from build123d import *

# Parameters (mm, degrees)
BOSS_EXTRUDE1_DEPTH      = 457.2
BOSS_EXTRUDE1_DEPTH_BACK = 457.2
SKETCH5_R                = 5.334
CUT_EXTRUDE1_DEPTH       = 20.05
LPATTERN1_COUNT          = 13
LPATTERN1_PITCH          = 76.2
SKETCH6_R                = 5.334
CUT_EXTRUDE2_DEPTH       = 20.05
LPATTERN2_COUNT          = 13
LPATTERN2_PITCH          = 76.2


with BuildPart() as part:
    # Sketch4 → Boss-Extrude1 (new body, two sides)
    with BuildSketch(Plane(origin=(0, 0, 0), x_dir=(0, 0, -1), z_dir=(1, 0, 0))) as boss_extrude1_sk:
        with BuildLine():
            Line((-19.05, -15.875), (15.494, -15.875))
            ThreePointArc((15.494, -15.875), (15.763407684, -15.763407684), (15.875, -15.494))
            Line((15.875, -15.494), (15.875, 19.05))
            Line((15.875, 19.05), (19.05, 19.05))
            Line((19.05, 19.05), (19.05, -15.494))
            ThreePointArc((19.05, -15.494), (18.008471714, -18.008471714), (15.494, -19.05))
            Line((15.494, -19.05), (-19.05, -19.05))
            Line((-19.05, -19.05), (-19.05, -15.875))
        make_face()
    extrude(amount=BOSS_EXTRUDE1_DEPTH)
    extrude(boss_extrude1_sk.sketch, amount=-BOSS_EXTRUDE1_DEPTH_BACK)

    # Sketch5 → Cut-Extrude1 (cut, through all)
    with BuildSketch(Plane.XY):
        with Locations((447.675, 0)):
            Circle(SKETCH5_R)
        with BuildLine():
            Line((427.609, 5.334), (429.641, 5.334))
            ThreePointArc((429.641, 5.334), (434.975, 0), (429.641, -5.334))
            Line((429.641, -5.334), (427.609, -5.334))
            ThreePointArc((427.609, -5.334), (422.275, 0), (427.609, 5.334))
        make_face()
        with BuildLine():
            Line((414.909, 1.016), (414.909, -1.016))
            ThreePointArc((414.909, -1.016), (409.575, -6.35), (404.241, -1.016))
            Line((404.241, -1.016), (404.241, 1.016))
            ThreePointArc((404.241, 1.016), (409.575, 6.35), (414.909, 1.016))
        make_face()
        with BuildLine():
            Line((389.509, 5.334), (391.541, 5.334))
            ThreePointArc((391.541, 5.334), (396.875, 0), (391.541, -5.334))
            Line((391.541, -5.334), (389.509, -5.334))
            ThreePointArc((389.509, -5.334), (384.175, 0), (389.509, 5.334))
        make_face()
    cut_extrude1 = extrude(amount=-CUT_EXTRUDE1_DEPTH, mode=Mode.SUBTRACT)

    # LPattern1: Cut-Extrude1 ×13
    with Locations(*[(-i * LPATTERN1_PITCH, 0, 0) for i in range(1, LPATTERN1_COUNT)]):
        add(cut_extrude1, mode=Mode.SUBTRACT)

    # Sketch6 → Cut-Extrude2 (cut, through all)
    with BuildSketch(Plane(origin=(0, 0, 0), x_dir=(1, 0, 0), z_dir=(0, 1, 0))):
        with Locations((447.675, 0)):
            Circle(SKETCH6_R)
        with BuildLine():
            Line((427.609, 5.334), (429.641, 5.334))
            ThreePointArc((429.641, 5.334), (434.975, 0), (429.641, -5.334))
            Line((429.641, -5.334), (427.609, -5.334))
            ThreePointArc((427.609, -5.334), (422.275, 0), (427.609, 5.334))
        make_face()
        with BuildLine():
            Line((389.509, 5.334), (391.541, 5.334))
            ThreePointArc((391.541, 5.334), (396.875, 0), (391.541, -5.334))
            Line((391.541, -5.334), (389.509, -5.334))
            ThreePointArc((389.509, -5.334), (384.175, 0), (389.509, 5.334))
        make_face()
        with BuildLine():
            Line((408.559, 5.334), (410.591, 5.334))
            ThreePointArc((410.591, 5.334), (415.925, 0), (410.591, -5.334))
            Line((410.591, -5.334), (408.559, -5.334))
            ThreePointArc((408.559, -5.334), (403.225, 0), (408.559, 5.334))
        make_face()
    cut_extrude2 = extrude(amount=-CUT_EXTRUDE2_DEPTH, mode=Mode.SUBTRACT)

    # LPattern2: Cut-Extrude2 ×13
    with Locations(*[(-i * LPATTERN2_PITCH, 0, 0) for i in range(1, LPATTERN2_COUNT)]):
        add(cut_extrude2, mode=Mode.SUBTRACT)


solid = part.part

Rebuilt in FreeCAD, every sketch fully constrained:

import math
import FreeCAD as App
import Part
import Sketcher
Q = App.Units.Quantity

doc = App.newDocument("Part")
params = doc.addObject("Spreadsheet::Sheet", "Params")
for row, (alias, value) in enumerate([
    ("sketch1_radius", "0.14 in"),
    ("sketch1_radius2", "0.015 in"),
    ("sketch1_width", "1.36 in"),
    ("pad1_length", "18 in"),
    ("pad1_length2", "18 in"),
    ("sketch2_diameter", "0.42 in"),
    ("sketch2_width", "0.08 in"),
    ("linearpattern_pitch", "3 in"),
    ("sketch3_diameter", "0.42 in"),
    ("sketch3_width", "0.08 in"),
    ("linearpattern2_pitch", "3 in"),
], start=1):
    params.set(f"A{row}", alias)
    params.set(f"B{row}", "=" + value)
    params.setAlias(f"B{row}", alias)

body = doc.addObject("PartDesign::Body", "Body")

# Sketch on YZ plane
sketch1 = doc.addObject("Sketcher::SketchObject", "Sketch")
body.addObject(sketch1)
sketch1.AttachmentSupport = (doc.YZ_Plane, [""])
sketch1.MapMode = "FlatFace"
sketch1.addGeometry(Part.LineSegment(App.Vector(-15.88, -15.49, 0), App.Vector(-15.88, 19.05, 0)), False)
sketch1.addGeometry(Part.LineSegment(App.Vector(-15.88, 19.05, 0), App.Vector(-19.05, 19.05, 0)), False)
sketch1.addGeometry(Part.LineSegment(App.Vector(-19.05, 19.05, 0), App.Vector(-19.05, -15.49, 0)), False)
sketch1.addGeometry(Part.ArcOfCircle(Part.Circle(App.Vector(-15.49, -15.49, 0), App.Vector(0, 0, 1), 3.56), math.radians(180), math.radians(270)), False)
sketch1.addGeometry(Part.LineSegment(App.Vector(-15.49, -19.05, 0), App.Vector(19.05, -19.05, 0)), False)
sketch1.addGeometry(Part.LineSegment(App.Vector(19.05, -19.05, 0), App.Vector(19.05, -15.88, 0)), False)
sketch1.addGeometry(Part.LineSegment(App.Vector(19.05, -15.88, 0), App.Vector(-15.49, -15.88, 0)), False)
sketch1.addGeometry(Part.ArcOfCircle(Part.Circle(App.Vector(-15.49, -15.49, 0), App.Vector(0, 0, 1), 0.38), math.radians(180), math.radians(270)), False)
sketch1.addConstraint(Sketcher.Constraint("Coincident", 0, 2, 1, 1))
sketch1.addConstraint(Sketcher.Constraint("Coincident", 1, 2, 2, 1))
sketch1.addConstraint(Sketcher.Constraint("Tangent", 2, 2, 3, 1))
sketch1.addConstraint(Sketcher.Constraint("Tangent", 3, 2, 4, 1))
sketch1.addConstraint(Sketcher.Constraint("Coincident", 4, 2, 5, 1))
sketch1.addConstraint(Sketcher.Constraint("Coincident", 5, 2, 6, 1))
sketch1.addConstraint(Sketcher.Constraint("Tangent", 6, 2, 7, 2))
sketch1.addConstraint(Sketcher.Constraint("Tangent", 7, 1, 0, 1))
sketch1.addConstraint(Sketcher.Constraint("Vertical", 0))
sketch1.addConstraint(Sketcher.Constraint("Horizontal", 1))
sketch1.addConstraint(Sketcher.Constraint("Vertical", 2))
sketch1.addConstraint(Sketcher.Constraint("Horizontal", 4))
sketch1.addConstraint(Sketcher.Constraint("Vertical", 5))
sketch1.addConstraint(Sketcher.Constraint("Horizontal", 6))
sketch1.addConstraint(Sketcher.Constraint("Coincident", 7, 3, 3, 3))
sketch1.addConstraint(Sketcher.Constraint("Symmetric", 1, 2, 4, 2, -1, 1))
sketch1.addConstraint(Sketcher.Constraint("Equal", 6, 0))
sketch1.addConstraint(Sketcher.Constraint("Radius", 3, Q("0.14 in")))
sketch1.addConstraint(Sketcher.Constraint("Radius", 7, Q("0.015 in")))
sketch1.addConstraint(Sketcher.Constraint("DistanceX", 4, 1, 4, 2, Q("1.36 in")))
sketch1.setExpression("Constraints[17]", "Params.sketch1_radius")
sketch1.setExpression("Constraints[18]", "Params.sketch1_radius2")
sketch1.setExpression("Constraints[19]", "Params.sketch1_width")
pad1 = doc.addObject("PartDesign::Pad", "Pad")
body.addObject(pad1)
pad1.Profile = sketch1
pad1.Type = "TwoLengths"
pad1.setExpression("Length", "Params.pad1_length")
pad1.setExpression("Length2", "Params.pad1_length2")

# Sketch on XY plane
sketch2 = doc.addObject("Sketcher::SketchObject", "Sketch001")
body.addObject(sketch2)
sketch2.AttachmentSupport = (doc.XY_Plane, [""])
sketch2.MapMode = "FlatFace"
sketch2.addGeometry(Part.Circle(App.Vector(447.7, 0, 0), App.Vector(0, 0, 1), 5.3), False)
sketch2.addGeometry(Part.LineSegment(App.Vector(429.6, 5.3, 0), App.Vector(427.6, 5.3, 0)), False)
sketch2.addGeometry(Part.ArcOfCircle(Part.Circle(App.Vector(427.6, 0, 0), App.Vector(0, 0, 1), 5.3), math.radians(90), math.radians(270)), False)
sketch2.addGeometry(Part.LineSegment(App.Vector(427.6, -5.3, 0), App.Vector(429.6, -5.3, 0)), False)
sketch2.addGeometry(Part.ArcOfCircle(Part.Circle(App.Vector(429.6, 0, 0), App.Vector(0, 0, 1), 5.3), math.radians(-90), math.radians(90)), False)
sketch2.addGeometry(Part.LineSegment(App.Vector(414.9, -1, 0), App.Vector(414.9, 1, 0)), False)
sketch2.addGeometry(Part.ArcOfCircle(Part.Circle(App.Vector(409.6, 1, 0), App.Vector(0, 0, 1), 5.3), math.radians(0), math.radians(180)), False)
sketch2.addGeometry(Part.LineSegment(App.Vector(404.2, 1, 0), App.Vector(404.2, -1, 0)), False)
sketch2.addGeometry(Part.ArcOfCircle(Part.Circle(App.Vector(409.6, -1, 0), App.Vector(0, 0, 1), 5.3), math.radians(180), math.radians(360)), False)
sketch2.addGeometry(Part.LineSegment(App.Vector(391.5, 5.3, 0), App.Vector(389.5, 5.3, 0)), False)
sketch2.addGeometry(Part.ArcOfCircle(Part.Circle(App.Vector(389.5, 0, 0), App.Vector(0, 0, 1), 5.3), math.radians(90), math.radians(270)), False)
sketch2.addGeometry(Part.LineSegment(App.Vector(389.5, -5.3, 0), App.Vector(391.5, -5.3, 0)), False)
sketch2.addGeometry(Part.ArcOfCircle(Part.Circle(App.Vector(391.5, 0, 0), App.Vector(0, 0, 1), 5.3), math.radians(-90), math.radians(90)), False)
sketch2.addConstraint(Sketcher.Constraint("Tangent", 1, 2, 2, 1))
sketch2.addConstraint(Sketcher.Constraint("Tangent", 2, 2, 3, 1))
sketch2.addConstraint(Sketcher.Constraint("Tangent", 3, 2, 4, 1))
sketch2.addConstraint(Sketcher.Constraint("Tangent", 4, 2, 1, 1))
sketch2.addConstraint(Sketcher.Constraint("Tangent", 5, 2, 6, 1))
sketch2.addConstraint(Sketcher.Constraint("Tangent", 6, 2, 7, 1))
sketch2.addConstraint(Sketcher.Constraint("Tangent", 7, 2, 8, 1))
sketch2.addConstraint(Sketcher.Constraint("Tangent", 8, 2, 5, 1))
sketch2.addConstraint(Sketcher.Constraint("Tangent", 9, 2, 10, 1))
sketch2.addConstraint(Sketcher.Constraint("Tangent", 10, 2, 11, 1))
sketch2.addConstraint(Sketcher.Constraint("Tangent", 11, 2, 12, 1))
sketch2.addConstraint(Sketcher.Constraint("Tangent", 12, 2, 9, 1))
sketch2.addConstraint(Sketcher.Constraint("Horizontal", 1))
sketch2.addConstraint(Sketcher.Constraint("Horizontal", 3))
sketch2.addConstraint(Sketcher.Constraint("Vertical", 5))
sketch2.addConstraint(Sketcher.Constraint("Vertical", 7))
sketch2.addConstraint(Sketcher.Constraint("Horizontal", 9))
sketch2.addConstraint(Sketcher.Constraint("Horizontal", 11))
sketch2.addConstraint(Sketcher.Constraint("Equal", 0, 2))
sketch2.addConstraint(Sketcher.Constraint("Equal", 4, 6))
sketch2.addConstraint(Sketcher.Constraint("Equal", 8, 10))
sketch2.addConstraint(Sketcher.Constraint("PointOnObject", 0, 3, -1))
sketch2.addConstraint(Sketcher.Constraint("PointOnObject", 2, 3, -1))
sketch2.addConstraint(Sketcher.Constraint("PointOnObject", 10, 3, -1))
sketch2.addConstraint(Sketcher.Constraint("Equal", 3, 9))
sketch2.addConstraint(Sketcher.Constraint("Equal", 11, 5))
sketch2.addConstraint(Sketcher.Constraint("Diameter", 0, Q("0.42 in")))
sketch2.addConstraint(Sketcher.Constraint("DistanceX", 1, 2, 1, 1, Q("0.08 in")))
sketch2.addConstraint(Sketcher.Constraint("DistanceX", 6, 3, 0, 3, Q("1.5 in")))
sketch2.addConstraint(Sketcher.Constraint("DistanceX", 10, 3, 2, 3, Q("1.5 in")))
sketch2.addConstraint(Sketcher.Constraint("DistanceX", 5, 2, 2, 3, Q("0.5 in")))
sketch2.addConstraint(Sketcher.Constraint("DistanceY", -1, 1, 6, 3, Q("0.04 in")))
sketch2.addConstraint(Sketcher.Constraint("DistanceX", -1, 1, 0, 3, Q("17.625 in")))
sketch2.setExpression("Constraints[26]", "Params.sketch2_diameter")
sketch2.setExpression("Constraints[27]", "Params.sketch2_width")
pocket1 = doc.addObject("PartDesign::Pocket", "Pocket")
body.addObject(pocket1)
pocket1.Profile = sketch2
pocket1.Type = "ThroughAll"
doc.recompute()

linearpattern = doc.addObject("PartDesign::LinearPattern", "LinearPattern")
body.addObject(linearpattern)
linearpattern.Originals = [pocket1]
linearpattern.Direction = (doc.X_Axis, [""])
linearpattern.Mode = "offset"
linearpattern.setExpression("Offset", "Params.linearpattern_pitch")
linearpattern.Occurrences = 13
linearpattern.Reversed = True
body.Tip = linearpattern

# Sketch on XZ plane
sketch3 = doc.addObject("Sketcher::SketchObject", "Sketch002")
body.addObject(sketch3)
sketch3.AttachmentSupport = (doc.XZ_Plane, [""])
sketch3.MapMode = "FlatFace"
sketch3.addGeometry(Part.Circle(App.Vector(447.7, 0, 0), App.Vector(0, 0, 1), 5.3), False)
sketch3.addGeometry(Part.LineSegment(App.Vector(429.6, -5.3, 0), App.Vector(427.6, -5.3, 0)), False)
sketch3.addGeometry(Part.ArcOfCircle(Part.Circle(App.Vector(427.6, 0, 0), App.Vector(0, 0, 1), 5.3), math.radians(90), math.radians(270)), False)
sketch3.addGeometry(Part.LineSegment(App.Vector(427.6, 5.3, 0), App.Vector(429.6, 5.3, 0)), False)
sketch3.addGeometry(Part.ArcOfCircle(Part.Circle(App.Vector(429.6, 0, 0), App.Vector(0, 0, 1), 5.3), math.radians(-90), math.radians(90)), False)
sketch3.addGeometry(Part.LineSegment(App.Vector(391.5, -5.3, 0), App.Vector(389.5, -5.3, 0)), False)
sketch3.addGeometry(Part.ArcOfCircle(Part.Circle(App.Vector(389.5, 0, 0), App.Vector(0, 0, 1), 5.3), math.radians(90), math.radians(270)), False)
sketch3.addGeometry(Part.LineSegment(App.Vector(389.5, 5.3, 0), App.Vector(391.5, 5.3, 0)), False)
sketch3.addGeometry(Part.ArcOfCircle(Part.Circle(App.Vector(391.5, 0, 0), App.Vector(0, 0, 1), 5.3), math.radians(-90), math.radians(90)), False)
sketch3.addGeometry(Part.LineSegment(App.Vector(410.6, -5.3, 0), App.Vector(408.6, -5.3, 0)), False)
sketch3.addGeometry(Part.ArcOfCircle(Part.Circle(App.Vector(408.6, 0, 0), App.Vector(0, 0, 1), 5.3), math.radians(90), math.radians(270)), False)
sketch3.addGeometry(Part.LineSegment(App.Vector(408.6, 5.3, 0), App.Vector(410.6, 5.3, 0)), False)
sketch3.addGeometry(Part.ArcOfCircle(Part.Circle(App.Vector(410.6, 0, 0), App.Vector(0, 0, 1), 5.3), math.radians(-90), math.radians(90)), False)
sketch3.addConstraint(Sketcher.Constraint("Tangent", 1, 2, 2, 2))
sketch3.addConstraint(Sketcher.Constraint("Tangent", 2, 1, 3, 1))
sketch3.addConstraint(Sketcher.Constraint("Tangent", 3, 2, 4, 2))
sketch3.addConstraint(Sketcher.Constraint("Tangent", 4, 1, 1, 1))
sketch3.addConstraint(Sketcher.Constraint("Tangent", 5, 2, 6, 2))
sketch3.addConstraint(Sketcher.Constraint("Tangent", 6, 1, 7, 1))
sketch3.addConstraint(Sketcher.Constraint("Tangent", 7, 2, 8, 2))
sketch3.addConstraint(Sketcher.Constraint("Tangent", 8, 1, 5, 1))
sketch3.addConstraint(Sketcher.Constraint("Tangent", 9, 2, 10, 2))
sketch3.addConstraint(Sketcher.Constraint("Tangent", 10, 1, 11, 1))
sketch3.addConstraint(Sketcher.Constraint("Tangent", 11, 2, 12, 2))
sketch3.addConstraint(Sketcher.Constraint("Tangent", 12, 1, 9, 1))
sketch3.addConstraint(Sketcher.Constraint("Horizontal", 1))
sketch3.addConstraint(Sketcher.Constraint("Horizontal", 3))
sketch3.addConstraint(Sketcher.Constraint("Horizontal", 5))
sketch3.addConstraint(Sketcher.Constraint("Horizontal", 7))
sketch3.addConstraint(Sketcher.Constraint("Horizontal", 9))
sketch3.addConstraint(Sketcher.Constraint("Horizontal", 11))
sketch3.addConstraint(Sketcher.Constraint("Equal", 0, 2))
sketch3.addConstraint(Sketcher.Constraint("Equal", 4, 6))
sketch3.addConstraint(Sketcher.Constraint("Equal", 8, 10))
sketch3.addConstraint(Sketcher.Constraint("PointOnObject", 0, 3, -1))
sketch3.addConstraint(Sketcher.Constraint("PointOnObject", 2, 3, -1))
sketch3.addConstraint(Sketcher.Constraint("PointOnObject", 6, 3, -1))
sketch3.addConstraint(Sketcher.Constraint("PointOnObject", 10, 3, -1))
sketch3.addConstraint(Sketcher.Constraint("Equal", 3, 5))
sketch3.addConstraint(Sketcher.Constraint("Equal", 7, 9))
sketch3.addConstraint(Sketcher.Constraint("Diameter", 0, Q("0.42 in")))
sketch3.addConstraint(Sketcher.Constraint("DistanceX", 1, 2, 1, 1, Q("0.08 in")))
sketch3.addConstraint(Sketcher.Constraint("DistanceX", 6, 3, 2, 3, Q("1.5 in")))
sketch3.addConstraint(Sketcher.Constraint("DistanceX", 2, 3, 0, 3, Q("0.79 in")))
sketch3.addConstraint(Sketcher.Constraint("DistanceX", 8, 3, 10, 3, Q("0.67 in")))
sketch3.addConstraint(Sketcher.Constraint("DistanceX", -1, 1, 0, 3, Q("17.625 in")))
sketch3.setExpression("Constraints[27]", "Params.sketch3_diameter")
sketch3.setExpression("Constraints[28]", "Params.sketch3_width")
pocket2 = doc.addObject("PartDesign::Pocket", "Pocket001")
body.addObject(pocket2)
pocket2.Profile = sketch3
pocket2.Type = "ThroughAll"
pocket2.Reversed = True
doc.recompute()

linearpattern2 = doc.addObject("PartDesign::LinearPattern", "LinearPattern001")
body.addObject(linearpattern2)
linearpattern2.Originals = [pocket2]
linearpattern2.Direction = (doc.X_Axis, [""])
linearpattern2.Mode = "offset"
linearpattern2.setExpression("Offset", "Params.linearpattern2_pitch")
linearpattern2.Occurrences = 13
linearpattern2.Reversed = True
body.Tip = linearpattern2

doc.recompute()
